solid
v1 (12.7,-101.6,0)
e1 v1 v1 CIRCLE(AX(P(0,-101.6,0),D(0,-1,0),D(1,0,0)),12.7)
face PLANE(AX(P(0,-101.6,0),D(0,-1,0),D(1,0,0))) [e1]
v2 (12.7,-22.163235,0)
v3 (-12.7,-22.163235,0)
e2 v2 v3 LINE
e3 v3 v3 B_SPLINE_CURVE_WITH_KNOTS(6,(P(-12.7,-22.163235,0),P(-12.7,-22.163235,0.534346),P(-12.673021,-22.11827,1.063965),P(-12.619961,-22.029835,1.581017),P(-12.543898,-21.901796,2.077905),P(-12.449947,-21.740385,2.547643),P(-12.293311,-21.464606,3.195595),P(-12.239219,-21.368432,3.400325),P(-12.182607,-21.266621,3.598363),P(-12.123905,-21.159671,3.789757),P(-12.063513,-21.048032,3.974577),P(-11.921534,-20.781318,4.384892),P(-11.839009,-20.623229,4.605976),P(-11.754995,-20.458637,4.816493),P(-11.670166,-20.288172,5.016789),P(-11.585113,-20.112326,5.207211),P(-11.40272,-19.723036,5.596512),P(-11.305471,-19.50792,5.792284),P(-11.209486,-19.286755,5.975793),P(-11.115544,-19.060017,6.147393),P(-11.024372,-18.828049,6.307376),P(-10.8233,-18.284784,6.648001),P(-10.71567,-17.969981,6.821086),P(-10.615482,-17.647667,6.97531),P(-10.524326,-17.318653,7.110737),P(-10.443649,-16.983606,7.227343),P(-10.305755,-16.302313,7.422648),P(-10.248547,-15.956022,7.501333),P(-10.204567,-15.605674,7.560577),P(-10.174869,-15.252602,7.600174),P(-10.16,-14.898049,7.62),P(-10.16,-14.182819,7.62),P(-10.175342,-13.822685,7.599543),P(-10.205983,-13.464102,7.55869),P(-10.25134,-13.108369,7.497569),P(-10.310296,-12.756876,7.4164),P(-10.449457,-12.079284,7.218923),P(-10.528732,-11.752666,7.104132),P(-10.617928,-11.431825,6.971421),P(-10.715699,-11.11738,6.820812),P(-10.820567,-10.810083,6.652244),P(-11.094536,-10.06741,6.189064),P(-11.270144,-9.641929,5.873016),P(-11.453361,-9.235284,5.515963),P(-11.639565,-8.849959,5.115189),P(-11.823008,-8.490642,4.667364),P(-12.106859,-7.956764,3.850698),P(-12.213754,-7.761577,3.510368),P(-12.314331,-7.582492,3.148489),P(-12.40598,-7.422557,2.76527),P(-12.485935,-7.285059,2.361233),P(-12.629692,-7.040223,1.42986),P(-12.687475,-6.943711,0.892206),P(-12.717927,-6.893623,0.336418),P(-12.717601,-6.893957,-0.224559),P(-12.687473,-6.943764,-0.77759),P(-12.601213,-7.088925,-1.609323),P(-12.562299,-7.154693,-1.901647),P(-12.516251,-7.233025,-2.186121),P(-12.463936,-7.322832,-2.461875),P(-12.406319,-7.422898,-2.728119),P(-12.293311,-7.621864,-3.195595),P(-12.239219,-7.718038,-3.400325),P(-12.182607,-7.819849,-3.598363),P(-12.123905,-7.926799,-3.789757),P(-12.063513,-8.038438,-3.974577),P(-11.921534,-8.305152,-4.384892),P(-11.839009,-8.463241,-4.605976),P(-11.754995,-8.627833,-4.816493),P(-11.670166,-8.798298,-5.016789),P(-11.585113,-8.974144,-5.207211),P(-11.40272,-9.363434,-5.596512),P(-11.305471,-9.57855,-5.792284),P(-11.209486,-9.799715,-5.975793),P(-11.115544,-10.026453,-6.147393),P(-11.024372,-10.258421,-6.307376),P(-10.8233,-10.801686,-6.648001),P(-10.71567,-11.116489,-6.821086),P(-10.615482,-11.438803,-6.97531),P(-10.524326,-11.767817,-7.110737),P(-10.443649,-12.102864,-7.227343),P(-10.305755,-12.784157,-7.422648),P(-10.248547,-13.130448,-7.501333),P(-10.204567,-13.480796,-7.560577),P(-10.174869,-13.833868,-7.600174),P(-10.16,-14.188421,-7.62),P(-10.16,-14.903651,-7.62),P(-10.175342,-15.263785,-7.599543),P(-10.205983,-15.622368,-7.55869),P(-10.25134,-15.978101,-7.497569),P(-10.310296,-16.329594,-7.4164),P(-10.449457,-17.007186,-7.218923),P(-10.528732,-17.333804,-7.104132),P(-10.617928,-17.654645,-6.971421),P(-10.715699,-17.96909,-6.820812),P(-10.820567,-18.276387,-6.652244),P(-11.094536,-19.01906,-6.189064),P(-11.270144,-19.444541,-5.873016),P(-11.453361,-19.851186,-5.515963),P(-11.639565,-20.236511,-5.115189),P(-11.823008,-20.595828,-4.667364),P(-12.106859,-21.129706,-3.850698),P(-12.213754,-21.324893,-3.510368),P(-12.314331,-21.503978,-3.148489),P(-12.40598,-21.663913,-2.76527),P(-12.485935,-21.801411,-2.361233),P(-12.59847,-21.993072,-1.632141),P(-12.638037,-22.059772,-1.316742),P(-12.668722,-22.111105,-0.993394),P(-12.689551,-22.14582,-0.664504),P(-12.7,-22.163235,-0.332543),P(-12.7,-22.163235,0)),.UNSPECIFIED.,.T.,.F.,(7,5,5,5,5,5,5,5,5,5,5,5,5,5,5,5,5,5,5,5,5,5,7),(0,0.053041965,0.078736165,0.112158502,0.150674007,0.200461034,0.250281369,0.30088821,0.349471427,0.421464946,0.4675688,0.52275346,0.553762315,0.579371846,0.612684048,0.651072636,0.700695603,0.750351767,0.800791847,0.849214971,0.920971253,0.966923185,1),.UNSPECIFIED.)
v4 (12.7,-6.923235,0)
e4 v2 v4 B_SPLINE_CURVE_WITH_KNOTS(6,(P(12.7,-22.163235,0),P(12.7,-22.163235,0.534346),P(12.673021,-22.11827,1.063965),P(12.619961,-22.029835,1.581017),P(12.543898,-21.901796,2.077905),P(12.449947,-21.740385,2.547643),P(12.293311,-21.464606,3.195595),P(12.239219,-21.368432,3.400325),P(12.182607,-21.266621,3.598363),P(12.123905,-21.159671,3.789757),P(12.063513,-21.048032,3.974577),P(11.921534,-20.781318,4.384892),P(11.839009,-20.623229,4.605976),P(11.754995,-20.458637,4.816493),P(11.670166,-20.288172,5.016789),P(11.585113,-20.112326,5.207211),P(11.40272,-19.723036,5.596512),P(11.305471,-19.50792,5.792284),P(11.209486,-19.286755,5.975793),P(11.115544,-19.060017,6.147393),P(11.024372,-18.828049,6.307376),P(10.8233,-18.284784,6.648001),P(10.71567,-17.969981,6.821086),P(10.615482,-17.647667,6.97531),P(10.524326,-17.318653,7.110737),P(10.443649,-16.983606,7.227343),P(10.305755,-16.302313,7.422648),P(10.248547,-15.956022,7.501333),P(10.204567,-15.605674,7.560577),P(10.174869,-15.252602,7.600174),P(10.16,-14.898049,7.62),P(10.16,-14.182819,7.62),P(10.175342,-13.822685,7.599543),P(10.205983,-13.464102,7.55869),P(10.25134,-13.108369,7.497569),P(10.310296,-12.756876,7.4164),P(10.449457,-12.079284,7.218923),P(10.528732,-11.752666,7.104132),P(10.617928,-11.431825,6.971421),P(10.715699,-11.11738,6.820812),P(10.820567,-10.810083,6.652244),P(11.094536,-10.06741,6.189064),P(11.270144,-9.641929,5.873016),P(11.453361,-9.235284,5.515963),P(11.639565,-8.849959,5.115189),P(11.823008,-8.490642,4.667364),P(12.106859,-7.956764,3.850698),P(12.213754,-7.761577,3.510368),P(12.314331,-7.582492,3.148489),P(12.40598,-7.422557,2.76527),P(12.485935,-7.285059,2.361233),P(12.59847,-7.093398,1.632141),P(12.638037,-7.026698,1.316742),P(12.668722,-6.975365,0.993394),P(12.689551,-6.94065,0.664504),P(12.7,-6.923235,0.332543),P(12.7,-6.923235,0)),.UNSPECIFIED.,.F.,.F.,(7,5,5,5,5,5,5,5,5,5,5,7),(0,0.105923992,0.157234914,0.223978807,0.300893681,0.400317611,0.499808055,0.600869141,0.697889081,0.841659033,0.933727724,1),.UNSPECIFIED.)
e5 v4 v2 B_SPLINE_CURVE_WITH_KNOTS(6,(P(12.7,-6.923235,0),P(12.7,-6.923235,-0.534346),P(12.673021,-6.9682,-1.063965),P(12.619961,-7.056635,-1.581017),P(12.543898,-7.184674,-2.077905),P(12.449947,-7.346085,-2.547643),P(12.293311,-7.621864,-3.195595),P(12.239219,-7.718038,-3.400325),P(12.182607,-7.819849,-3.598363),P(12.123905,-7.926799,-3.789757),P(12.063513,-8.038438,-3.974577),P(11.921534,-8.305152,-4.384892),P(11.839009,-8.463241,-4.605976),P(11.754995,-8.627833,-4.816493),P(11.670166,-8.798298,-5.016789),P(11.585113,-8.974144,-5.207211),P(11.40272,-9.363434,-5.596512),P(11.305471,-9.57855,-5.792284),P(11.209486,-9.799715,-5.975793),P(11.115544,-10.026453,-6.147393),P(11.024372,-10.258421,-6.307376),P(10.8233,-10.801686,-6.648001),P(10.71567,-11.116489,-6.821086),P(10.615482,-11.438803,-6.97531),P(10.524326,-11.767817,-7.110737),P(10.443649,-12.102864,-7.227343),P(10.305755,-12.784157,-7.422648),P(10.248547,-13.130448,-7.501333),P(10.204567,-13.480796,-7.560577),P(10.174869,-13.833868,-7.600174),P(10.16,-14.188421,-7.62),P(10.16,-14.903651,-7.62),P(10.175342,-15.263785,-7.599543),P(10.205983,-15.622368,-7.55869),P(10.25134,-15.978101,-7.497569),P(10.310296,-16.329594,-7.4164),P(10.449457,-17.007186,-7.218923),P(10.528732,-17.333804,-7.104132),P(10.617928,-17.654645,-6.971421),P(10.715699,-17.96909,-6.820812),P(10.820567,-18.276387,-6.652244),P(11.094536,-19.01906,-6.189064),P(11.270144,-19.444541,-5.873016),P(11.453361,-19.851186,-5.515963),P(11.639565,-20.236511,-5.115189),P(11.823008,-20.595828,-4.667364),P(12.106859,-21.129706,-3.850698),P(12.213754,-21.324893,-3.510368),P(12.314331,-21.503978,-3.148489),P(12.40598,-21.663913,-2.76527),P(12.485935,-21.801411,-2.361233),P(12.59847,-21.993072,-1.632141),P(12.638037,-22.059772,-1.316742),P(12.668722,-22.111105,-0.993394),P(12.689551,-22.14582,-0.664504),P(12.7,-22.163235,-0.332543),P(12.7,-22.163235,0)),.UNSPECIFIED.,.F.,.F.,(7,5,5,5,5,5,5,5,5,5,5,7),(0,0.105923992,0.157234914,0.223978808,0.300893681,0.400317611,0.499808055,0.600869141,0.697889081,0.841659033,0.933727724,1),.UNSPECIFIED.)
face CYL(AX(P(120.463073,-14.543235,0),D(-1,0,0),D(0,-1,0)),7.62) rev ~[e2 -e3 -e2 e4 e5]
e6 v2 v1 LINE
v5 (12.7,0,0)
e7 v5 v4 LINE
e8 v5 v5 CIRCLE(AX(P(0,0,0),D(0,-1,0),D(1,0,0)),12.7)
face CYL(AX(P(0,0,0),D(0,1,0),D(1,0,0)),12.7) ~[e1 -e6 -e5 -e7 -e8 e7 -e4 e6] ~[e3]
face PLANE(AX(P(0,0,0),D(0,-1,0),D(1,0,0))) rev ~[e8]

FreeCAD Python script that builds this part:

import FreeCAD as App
import Part
import Sketcher
from FreeCAD import Vector
Q = App.Units.Quantity

doc = App.newDocument("Part")
body = doc.addObject("PartDesign::Body", "Body")

# Sketch on XZ plane
sketch1 = body.newObject("Sketcher::SketchObject", "Sketch")
sketch1.AttachmentSupport = (doc.getObject("XZ_Plane"), [""])
sketch1.MapMode = "FlatFace"
sketch1.addGeometry(Part.Circle(Vector(0, 0, 0), Vector(0, 0, 1), 12.7), False)
sketch1.addConstraint(Sketcher.Constraint("Coincident", 0, 3, -1, 1))
sketch1.addConstraint(Sketcher.Constraint("Diameter", 0, Q("1 in")))
pad1 = body.newObject("PartDesign::Pad", "Pad")
pad1.Profile = sketch1
pad1.Length = Q("4 in")

# Sketch on YZ plane
sketch2 = body.newObject("Sketcher::SketchObject", "Sketch001")
sketch2.AttachmentSupport = (doc.getObject("YZ_Plane"), [""])
sketch2.MapMode = "FlatFace"
sketch2.AttachmentOffset = App.Placement(Vector(0, 0, 0.5 * 25.4), App.Rotation())
sketch2.addGeometry(Part.Circle(Vector(-14.543235, 0, 0), Vector(0, 0, 1), 7.62), False)
sketch2.addConstraint(Sketcher.Constraint("PointOnObject", 0, 3, -1))
sketch2.addConstraint(Sketcher.Constraint("Diameter", 0, Q("0.6 in")))
sketch2.addConstraint(Sketcher.Constraint("DistanceX", 0, 3, -1, 1, 14.543235))
doc.recompute()
hole = body.newObject("PartDesign::Hole", "Hole")
hole.Profile = sketch2
hole.ThreadType = "None"
hole.Diameter = Q("0.6 in")
hole.DepthType = "ThroughAll"

doc.recompute()
